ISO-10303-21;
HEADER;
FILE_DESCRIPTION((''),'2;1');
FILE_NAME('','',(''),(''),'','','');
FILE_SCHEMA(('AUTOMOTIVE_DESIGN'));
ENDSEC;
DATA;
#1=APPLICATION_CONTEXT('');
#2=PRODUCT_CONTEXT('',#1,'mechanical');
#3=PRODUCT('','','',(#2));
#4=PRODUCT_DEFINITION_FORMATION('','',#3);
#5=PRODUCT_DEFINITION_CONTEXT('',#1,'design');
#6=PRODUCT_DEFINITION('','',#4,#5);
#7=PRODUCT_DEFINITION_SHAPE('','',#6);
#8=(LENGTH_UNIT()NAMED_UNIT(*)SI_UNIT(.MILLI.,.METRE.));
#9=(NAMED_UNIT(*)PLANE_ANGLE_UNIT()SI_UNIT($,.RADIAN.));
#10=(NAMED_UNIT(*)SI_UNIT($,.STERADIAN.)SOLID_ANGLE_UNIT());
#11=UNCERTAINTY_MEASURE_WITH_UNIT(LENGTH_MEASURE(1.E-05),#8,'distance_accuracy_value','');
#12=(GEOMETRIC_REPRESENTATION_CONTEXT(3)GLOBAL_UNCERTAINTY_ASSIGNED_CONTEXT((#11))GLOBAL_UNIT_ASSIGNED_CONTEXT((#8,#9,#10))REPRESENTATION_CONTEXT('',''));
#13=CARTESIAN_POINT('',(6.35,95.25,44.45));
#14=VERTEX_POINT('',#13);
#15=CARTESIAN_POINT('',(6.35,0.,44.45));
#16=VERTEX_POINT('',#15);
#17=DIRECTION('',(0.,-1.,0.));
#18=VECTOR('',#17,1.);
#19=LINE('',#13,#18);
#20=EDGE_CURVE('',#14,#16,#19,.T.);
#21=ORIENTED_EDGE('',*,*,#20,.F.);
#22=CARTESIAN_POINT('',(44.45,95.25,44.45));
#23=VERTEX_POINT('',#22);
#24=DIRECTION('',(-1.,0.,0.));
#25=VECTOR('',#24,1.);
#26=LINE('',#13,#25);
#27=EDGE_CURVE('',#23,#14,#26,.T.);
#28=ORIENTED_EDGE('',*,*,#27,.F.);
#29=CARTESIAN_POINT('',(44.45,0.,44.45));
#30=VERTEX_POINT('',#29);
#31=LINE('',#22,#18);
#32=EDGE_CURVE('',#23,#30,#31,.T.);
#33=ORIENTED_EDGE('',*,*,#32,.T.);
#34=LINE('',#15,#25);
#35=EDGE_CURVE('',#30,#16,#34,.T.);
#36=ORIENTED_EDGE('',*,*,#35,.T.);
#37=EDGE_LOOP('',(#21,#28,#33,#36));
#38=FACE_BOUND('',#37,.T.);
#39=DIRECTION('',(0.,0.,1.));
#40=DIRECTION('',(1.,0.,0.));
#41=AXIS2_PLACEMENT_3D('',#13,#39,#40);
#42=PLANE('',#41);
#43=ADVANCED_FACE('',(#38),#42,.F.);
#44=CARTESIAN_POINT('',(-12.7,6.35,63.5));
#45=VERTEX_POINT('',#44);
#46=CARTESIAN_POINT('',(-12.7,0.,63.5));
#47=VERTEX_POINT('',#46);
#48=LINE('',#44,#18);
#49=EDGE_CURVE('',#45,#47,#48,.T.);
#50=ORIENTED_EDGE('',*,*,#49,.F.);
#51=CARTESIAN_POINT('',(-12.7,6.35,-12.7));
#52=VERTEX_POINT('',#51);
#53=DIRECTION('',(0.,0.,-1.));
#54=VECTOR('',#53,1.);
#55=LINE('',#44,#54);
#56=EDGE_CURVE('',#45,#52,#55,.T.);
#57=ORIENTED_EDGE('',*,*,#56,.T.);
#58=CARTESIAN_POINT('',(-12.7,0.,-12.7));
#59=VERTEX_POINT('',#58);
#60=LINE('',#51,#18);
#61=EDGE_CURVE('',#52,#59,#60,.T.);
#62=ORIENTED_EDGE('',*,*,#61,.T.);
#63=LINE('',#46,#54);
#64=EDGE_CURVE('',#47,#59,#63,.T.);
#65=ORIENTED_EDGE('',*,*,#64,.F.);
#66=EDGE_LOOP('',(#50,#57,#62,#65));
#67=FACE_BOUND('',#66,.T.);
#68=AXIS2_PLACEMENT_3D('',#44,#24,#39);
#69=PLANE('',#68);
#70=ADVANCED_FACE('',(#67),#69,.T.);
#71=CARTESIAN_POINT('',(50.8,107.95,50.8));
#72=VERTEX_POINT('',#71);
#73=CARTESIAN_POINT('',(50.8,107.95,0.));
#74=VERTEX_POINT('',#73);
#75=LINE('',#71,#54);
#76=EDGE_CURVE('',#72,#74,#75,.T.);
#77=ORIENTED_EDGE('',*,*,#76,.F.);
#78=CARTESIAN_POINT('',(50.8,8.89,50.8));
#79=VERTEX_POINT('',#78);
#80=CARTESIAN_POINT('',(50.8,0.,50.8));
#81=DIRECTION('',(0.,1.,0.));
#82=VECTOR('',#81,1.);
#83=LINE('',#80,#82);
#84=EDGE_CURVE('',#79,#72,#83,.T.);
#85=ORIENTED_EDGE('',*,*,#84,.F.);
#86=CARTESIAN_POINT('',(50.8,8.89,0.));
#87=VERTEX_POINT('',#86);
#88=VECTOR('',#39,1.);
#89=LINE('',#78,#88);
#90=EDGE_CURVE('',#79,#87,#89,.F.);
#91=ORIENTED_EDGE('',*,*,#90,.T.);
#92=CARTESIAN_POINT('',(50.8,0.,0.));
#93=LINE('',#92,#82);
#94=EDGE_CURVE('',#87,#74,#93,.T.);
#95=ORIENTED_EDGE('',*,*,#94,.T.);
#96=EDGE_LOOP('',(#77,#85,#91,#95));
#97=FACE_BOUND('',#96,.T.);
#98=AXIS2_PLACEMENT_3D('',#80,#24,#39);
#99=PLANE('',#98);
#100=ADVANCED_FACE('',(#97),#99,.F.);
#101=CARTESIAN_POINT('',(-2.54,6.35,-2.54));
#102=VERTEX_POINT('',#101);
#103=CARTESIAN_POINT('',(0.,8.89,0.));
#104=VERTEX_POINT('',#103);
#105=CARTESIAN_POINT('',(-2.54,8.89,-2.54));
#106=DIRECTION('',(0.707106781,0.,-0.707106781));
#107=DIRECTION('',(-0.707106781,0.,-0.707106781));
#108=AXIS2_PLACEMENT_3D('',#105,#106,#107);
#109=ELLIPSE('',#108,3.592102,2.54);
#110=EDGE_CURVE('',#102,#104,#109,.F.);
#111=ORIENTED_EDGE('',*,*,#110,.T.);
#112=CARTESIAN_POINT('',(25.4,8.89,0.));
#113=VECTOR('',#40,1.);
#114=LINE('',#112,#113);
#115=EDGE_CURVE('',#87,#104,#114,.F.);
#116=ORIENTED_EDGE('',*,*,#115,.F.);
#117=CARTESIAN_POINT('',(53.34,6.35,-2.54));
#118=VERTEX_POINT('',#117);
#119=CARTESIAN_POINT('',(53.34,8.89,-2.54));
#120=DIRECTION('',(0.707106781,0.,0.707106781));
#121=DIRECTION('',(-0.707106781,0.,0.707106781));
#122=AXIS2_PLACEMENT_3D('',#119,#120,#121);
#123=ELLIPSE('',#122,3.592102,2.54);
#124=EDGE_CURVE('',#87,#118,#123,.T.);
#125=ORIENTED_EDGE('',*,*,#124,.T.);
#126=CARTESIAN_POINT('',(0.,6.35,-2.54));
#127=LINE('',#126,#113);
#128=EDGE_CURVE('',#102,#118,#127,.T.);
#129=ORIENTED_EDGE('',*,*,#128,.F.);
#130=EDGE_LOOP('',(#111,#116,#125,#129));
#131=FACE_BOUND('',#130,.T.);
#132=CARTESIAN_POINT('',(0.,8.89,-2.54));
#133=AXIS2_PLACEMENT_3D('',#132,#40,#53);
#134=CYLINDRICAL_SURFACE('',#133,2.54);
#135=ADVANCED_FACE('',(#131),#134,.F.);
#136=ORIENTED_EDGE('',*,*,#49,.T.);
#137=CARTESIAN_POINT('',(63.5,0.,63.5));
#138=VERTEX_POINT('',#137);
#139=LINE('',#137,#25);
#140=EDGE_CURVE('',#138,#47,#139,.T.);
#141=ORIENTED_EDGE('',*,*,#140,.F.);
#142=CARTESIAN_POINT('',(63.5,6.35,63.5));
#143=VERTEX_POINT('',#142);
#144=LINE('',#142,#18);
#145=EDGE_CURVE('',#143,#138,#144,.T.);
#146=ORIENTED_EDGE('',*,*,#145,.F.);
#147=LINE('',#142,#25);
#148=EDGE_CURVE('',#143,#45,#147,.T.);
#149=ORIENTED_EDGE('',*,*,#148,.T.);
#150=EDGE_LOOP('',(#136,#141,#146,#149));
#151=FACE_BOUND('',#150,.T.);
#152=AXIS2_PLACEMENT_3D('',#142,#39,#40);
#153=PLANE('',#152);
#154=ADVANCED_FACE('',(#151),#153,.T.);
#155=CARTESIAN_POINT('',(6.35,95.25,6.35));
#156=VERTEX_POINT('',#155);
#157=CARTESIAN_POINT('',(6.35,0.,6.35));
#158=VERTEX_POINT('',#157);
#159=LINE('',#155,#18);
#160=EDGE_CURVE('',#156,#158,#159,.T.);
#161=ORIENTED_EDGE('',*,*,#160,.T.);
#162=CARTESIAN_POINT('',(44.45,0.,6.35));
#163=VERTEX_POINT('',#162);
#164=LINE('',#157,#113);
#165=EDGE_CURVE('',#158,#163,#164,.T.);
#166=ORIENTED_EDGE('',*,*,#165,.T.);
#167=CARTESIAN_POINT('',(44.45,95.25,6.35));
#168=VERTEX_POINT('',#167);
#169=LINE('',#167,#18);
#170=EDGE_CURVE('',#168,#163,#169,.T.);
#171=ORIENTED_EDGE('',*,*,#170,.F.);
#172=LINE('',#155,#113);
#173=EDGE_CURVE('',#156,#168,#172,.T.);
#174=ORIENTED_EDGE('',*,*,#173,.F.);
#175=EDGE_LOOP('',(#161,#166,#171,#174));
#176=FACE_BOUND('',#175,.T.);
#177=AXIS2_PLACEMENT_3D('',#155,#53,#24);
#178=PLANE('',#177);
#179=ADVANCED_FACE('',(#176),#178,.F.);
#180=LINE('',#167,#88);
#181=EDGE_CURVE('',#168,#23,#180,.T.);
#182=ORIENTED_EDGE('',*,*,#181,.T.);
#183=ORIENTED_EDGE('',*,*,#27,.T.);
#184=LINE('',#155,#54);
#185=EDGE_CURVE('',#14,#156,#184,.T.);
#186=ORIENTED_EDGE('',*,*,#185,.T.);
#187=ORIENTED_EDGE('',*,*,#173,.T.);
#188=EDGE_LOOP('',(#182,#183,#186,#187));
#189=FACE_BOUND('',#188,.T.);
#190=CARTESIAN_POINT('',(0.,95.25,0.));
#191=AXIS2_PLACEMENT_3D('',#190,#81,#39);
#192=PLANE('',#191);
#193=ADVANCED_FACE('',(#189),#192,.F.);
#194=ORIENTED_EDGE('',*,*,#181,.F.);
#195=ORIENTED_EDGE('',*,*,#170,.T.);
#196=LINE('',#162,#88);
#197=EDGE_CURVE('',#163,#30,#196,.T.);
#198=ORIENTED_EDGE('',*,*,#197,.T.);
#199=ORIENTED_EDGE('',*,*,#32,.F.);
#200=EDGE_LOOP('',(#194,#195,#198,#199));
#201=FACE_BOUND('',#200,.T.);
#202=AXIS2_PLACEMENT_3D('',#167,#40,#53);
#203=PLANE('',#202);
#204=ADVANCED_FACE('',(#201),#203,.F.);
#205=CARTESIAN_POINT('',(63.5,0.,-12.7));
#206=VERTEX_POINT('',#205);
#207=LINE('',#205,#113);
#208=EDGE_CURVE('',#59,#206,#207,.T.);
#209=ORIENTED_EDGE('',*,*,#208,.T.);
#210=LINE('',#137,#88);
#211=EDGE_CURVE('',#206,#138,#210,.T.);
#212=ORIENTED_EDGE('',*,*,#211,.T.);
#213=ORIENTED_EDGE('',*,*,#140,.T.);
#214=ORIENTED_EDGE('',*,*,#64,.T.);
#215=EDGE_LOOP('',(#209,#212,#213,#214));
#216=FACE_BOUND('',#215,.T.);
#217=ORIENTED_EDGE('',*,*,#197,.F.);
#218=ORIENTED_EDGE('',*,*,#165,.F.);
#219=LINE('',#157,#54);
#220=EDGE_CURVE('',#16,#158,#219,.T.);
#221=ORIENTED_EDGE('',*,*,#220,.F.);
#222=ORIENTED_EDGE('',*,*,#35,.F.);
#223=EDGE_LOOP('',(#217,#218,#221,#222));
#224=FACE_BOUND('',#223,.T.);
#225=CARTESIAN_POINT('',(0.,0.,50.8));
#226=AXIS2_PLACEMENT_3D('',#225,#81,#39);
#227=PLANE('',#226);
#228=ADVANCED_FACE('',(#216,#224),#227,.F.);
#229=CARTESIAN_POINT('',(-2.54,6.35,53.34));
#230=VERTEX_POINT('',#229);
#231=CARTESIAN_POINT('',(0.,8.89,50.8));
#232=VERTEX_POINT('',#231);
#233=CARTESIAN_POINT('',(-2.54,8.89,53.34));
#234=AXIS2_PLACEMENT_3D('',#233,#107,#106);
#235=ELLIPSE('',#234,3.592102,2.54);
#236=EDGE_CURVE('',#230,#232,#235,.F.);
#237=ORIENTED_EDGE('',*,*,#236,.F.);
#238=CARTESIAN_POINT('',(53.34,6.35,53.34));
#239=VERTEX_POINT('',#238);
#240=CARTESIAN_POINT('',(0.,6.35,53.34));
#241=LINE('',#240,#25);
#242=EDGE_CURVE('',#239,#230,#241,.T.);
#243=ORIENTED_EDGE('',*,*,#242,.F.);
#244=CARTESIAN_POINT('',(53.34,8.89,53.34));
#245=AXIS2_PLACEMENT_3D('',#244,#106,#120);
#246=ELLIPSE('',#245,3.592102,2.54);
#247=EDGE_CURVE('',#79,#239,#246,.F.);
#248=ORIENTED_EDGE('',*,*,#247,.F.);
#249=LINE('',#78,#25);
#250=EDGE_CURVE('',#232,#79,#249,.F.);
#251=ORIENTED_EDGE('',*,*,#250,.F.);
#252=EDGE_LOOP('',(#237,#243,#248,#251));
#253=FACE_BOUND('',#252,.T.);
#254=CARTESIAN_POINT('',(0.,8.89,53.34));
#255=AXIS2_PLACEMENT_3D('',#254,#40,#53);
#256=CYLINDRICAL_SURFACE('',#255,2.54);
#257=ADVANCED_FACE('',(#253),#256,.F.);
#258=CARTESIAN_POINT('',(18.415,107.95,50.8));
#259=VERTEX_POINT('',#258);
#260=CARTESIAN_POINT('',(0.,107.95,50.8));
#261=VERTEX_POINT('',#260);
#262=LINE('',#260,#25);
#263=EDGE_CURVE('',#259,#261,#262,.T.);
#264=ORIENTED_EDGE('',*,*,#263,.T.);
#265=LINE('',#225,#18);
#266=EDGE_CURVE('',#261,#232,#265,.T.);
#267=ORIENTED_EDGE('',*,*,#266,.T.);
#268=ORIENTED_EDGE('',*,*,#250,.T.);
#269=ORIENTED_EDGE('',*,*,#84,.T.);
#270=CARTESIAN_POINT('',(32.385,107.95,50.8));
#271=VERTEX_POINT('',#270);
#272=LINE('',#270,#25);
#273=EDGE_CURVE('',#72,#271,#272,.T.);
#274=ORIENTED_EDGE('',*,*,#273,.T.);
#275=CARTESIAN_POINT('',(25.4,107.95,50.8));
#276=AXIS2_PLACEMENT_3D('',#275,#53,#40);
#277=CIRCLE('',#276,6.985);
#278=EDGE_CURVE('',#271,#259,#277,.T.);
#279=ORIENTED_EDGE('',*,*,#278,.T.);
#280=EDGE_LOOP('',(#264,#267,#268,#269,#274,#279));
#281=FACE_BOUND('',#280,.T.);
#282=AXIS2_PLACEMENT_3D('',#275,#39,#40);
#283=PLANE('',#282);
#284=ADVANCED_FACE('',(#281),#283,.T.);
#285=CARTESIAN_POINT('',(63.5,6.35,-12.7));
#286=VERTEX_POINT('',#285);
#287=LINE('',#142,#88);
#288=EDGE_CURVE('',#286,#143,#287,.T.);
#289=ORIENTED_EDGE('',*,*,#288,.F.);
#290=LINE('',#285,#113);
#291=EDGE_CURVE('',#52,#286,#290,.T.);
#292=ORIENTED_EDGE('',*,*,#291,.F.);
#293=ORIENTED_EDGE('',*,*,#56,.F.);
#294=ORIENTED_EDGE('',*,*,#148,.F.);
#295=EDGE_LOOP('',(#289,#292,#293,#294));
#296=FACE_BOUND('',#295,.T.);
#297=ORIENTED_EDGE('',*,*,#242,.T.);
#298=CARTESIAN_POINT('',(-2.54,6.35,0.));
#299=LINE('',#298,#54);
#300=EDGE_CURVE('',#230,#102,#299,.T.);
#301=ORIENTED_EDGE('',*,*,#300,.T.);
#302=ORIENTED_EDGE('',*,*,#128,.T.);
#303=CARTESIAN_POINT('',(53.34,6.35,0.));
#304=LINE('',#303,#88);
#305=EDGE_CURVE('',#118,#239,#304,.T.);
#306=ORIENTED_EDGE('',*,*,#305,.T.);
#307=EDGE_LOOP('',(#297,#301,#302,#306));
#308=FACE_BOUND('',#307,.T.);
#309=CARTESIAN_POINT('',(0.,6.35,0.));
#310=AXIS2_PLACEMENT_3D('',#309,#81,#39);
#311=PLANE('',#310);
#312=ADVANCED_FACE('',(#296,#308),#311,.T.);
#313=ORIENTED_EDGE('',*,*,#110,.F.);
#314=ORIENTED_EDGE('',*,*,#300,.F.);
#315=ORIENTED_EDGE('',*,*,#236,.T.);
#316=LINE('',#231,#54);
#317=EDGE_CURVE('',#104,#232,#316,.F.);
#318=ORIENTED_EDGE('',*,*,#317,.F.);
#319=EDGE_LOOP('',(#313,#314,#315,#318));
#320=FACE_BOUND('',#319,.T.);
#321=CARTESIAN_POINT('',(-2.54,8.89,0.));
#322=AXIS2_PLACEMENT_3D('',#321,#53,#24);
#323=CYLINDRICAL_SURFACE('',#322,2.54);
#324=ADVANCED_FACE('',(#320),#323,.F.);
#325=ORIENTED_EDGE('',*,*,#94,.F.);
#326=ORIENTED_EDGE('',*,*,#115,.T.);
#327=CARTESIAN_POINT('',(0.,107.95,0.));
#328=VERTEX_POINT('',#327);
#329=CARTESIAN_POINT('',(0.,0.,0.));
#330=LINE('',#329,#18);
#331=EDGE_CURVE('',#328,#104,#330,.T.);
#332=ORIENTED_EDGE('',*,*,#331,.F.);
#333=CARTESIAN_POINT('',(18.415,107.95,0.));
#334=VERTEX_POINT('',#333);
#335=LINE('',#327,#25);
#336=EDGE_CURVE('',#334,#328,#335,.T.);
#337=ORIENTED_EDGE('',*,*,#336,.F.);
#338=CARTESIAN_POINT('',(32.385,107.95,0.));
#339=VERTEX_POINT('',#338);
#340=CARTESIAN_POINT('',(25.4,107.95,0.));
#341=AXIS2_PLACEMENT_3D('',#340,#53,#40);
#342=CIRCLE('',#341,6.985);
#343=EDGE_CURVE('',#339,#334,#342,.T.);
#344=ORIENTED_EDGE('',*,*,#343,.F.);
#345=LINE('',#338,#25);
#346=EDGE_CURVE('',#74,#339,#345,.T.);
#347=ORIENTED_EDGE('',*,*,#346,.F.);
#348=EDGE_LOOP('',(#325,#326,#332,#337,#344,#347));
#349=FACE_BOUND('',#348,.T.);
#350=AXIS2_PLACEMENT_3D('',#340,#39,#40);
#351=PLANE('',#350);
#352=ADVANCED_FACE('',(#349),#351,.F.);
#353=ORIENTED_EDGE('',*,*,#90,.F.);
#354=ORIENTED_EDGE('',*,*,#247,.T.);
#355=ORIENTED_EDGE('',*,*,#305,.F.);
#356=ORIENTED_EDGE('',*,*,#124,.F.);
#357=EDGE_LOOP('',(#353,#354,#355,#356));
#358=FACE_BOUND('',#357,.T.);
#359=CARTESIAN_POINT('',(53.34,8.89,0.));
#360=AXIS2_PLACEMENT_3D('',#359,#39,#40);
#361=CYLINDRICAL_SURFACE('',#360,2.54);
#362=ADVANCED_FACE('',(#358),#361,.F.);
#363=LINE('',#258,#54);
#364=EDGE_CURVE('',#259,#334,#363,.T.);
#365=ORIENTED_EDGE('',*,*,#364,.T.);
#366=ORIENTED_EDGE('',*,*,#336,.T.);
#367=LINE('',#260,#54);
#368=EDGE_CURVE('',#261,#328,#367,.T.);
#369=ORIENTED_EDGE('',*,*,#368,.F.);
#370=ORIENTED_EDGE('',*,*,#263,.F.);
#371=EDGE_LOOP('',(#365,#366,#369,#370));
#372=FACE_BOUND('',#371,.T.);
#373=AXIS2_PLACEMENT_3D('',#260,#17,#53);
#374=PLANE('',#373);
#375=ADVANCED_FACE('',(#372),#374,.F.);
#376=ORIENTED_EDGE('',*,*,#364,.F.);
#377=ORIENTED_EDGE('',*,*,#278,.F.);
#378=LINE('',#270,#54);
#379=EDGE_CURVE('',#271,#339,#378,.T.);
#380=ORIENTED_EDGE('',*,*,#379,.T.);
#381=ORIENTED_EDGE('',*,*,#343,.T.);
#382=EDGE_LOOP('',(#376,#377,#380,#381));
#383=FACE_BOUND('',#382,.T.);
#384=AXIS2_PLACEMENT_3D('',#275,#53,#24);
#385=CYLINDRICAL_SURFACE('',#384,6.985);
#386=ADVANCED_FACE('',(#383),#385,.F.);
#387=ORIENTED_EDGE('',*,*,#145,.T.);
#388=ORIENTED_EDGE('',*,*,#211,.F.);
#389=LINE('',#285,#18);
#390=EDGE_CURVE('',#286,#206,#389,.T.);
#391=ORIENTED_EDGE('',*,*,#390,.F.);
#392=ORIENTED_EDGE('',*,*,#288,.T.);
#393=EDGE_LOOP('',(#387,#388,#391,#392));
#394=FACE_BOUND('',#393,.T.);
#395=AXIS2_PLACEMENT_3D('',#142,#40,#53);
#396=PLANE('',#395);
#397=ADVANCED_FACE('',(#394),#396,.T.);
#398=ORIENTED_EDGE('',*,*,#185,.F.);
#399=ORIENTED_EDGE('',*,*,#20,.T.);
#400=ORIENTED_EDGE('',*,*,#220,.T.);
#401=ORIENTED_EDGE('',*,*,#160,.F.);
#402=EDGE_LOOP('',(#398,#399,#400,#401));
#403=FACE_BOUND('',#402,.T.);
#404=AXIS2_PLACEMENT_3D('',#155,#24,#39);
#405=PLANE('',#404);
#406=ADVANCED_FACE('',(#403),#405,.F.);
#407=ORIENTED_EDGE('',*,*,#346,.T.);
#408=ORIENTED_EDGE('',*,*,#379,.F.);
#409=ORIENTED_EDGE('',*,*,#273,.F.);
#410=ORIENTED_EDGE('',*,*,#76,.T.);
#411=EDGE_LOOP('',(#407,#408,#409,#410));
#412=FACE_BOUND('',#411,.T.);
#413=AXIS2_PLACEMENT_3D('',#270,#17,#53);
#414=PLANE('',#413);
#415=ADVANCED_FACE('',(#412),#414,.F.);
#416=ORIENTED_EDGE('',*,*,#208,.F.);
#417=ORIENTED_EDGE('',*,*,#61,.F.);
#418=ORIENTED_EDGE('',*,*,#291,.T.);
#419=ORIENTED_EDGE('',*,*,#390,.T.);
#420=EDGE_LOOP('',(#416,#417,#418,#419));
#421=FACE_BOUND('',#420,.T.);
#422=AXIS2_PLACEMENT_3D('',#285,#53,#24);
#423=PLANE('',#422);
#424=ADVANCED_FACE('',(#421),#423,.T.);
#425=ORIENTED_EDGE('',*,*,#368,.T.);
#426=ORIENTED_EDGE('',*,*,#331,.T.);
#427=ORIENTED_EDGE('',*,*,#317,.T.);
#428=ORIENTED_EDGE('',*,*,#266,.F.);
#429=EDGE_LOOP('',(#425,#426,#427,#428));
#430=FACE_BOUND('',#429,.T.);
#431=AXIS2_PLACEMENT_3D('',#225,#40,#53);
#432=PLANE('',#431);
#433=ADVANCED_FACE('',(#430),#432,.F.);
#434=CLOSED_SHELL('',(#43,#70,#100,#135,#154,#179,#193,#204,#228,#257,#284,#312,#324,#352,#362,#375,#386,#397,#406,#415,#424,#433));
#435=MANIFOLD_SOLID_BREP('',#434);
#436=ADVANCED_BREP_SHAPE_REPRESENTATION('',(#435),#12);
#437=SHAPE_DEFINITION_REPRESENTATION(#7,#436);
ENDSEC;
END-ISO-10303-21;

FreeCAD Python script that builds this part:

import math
import FreeCAD as App
import Part
import Sketcher

V = App.Vector
Q = App.Units.Quantity


def edges_at(feature, points):
    """Names of the edges that pass closest to the given points."""
    edges = feature.Shape.Edges
    near = lambda p: min(range(len(edges)), key=lambda i: edges[i].distToShape(Part.Vertex(*p))[0])
    return sorted({f"Edge{near(p) + 1}" for p in points})

doc = App.newDocument("Part")
body = doc.addObject("PartDesign::Body", "Body")

# Sketch on XY plane
sketch1 = body.newObject("Sketcher::SketchObject", "Sketch")
sketch1.AttachmentSupport = (doc.getObject("XY_Plane"), [""])
sketch1.MapMode = "FlatFace"
sketch1.addGeometry([
    Part.LineSegment(V(50.8, 107.95, 0), V(32.385, 107.95, 0)),  # 0
    Part.ArcOfCircle(Part.Circle(V(25.4, 107.95, 0), V(0, 0, 1), 6.985), math.radians(180), math.radians(360)),  # 1
    Part.LineSegment(V(18.415, 107.95, 0), V(0, 107.95, 0)),  # 2
    Part.LineSegment(V(0, 107.95, 0), V(0, 0, 0)),  # 3
    Part.LineSegment(V(0, 0, 0), V(50.8, 0, 0)),  # 4
    Part.LineSegment(V(50.8, 0, 0), V(50.8, 107.95, 0)),  # 5
], False)
sketch1.addConstraint([
    Sketcher.Constraint("Coincident", 0, 2, 1, 2),
    Sketcher.Constraint("Coincident", 1, 1, 2, 1),
    Sketcher.Constraint("Coincident", 2, 2, 3, 1),
    Sketcher.Constraint("Coincident", 3, 2, 4, 1),
    Sketcher.Constraint("Coincident", 4, 2, 5, 1),
    Sketcher.Constraint("Coincident", 5, 2, 0, 1),
    Sketcher.Constraint("Horizontal", 0),
    Sketcher.Constraint("Horizontal", 2),
    Sketcher.Constraint("Vertical", 3),
    Sketcher.Constraint("Horizontal", 4),
    Sketcher.Constraint("Vertical", 5),
    Sketcher.Constraint("Coincident", 3, 2, -1, 1),
    Sketcher.Constraint("Horizontal", 1, 3, 0, 2),
    Sketcher.Constraint("Horizontal", 0, 2, 1, 1),
    Sketcher.Constraint("Equal", 0, 2),
    Sketcher.Constraint("DistanceX", 4, 1, 4, 2, Q("2 in")),
    Sketcher.Constraint("Radius", 1, Q("0.275 in")),
    Sketcher.Constraint("DistanceY", 3, 2, 3, 1, Q("4.25 in")),
])
pad1 = body.newObject("PartDesign::Pad", "Pad")
pad1.Profile = sketch1
pad1.Length = Q("2 in")

# Sketch on XZ plane
sketch2 = body.newObject("Sketcher::SketchObject", "Sketch001")
sketch2.AttachmentSupport = (doc.getObject("XZ_Plane"), [""])
sketch2.MapMode = "FlatFace"
sketch2.addGeometry([
    Part.LineSegment(V(6.35, 44.45, 0), V(6.35, 6.35, 0)),
    Part.LineSegment(V(6.35, 6.35, 0), V(44.45, 6.35, 0)),
    Part.LineSegment(V(44.45, 6.35, 0), V(44.45, 44.45, 0)),
    Part.LineSegment(V(44.45, 44.45, 0), V(6.35, 44.45, 0)),
], False)
sketch2.addConstraint([
    Sketcher.Constraint("Coincident", 0, 2, 1, 1),
    Sketcher.Constraint("Coincident", 1, 2, 2, 1),
    Sketcher.Constraint("Coincident", 2, 2, 3, 1),
    Sketcher.Constraint("Coincident", 3, 2, 0, 1),
    Sketcher.Constraint("Vertical", 0),
    Sketcher.Constraint("Horizontal", 1),
    Sketcher.Constraint("Vertical", 2),
    Sketcher.Constraint("Horizontal", 3),
    Sketcher.Constraint("Equal", 3, 0),
    Sketcher.Constraint("DistanceX", 1, 1, 1, 2, Q("1.5 in")),
    Sketcher.Constraint("DistanceX", -1, 1, 0, 2, Q("0.25 in")),
    Sketcher.Constraint("DistanceY", -1, 1, 0, 2, Q("0.25 in")),
])
pocket1 = body.newObject("PartDesign::Pocket", "Pocket")
pocket1.Profile = sketch2
pocket1.Length = Q("3.75 in")

# Sketch on XZ plane
sketch3 = body.newObject("Sketcher::SketchObject", "Sketch002")
sketch3.AttachmentSupport = (doc.getObject("XZ_Plane"), [""])
sketch3.MapMode = "FlatFace"
sketch3.addGeometry([
    Part.LineSegment(V(-12.7, 63.5, 0), V(-12.7, -12.7, 0)),  # 0
    Part.LineSegment(V(-12.7, -12.7, 0), V(63.5, -12.7, 0)),  # 1
    Part.LineSegment(V(63.5, -12.7, 0), V(63.5, 63.5, 0)),  # 2
    Part.LineSegment(V(63.5, 63.5, 0), V(-12.7, 63.5, 0)),  # 3
    Part.LineSegment(V(50.8, 0, 0), V(0, 0, 0)),  # 4
    Part.LineSegment(V(0, 0, 0), V(0, 50.8, 0)),  # 5
    Part.LineSegment(V(0, 50.8, 0), V(50.8, 50.8, 0)),  # 6
    Part.LineSegment(V(50.8, 50.8, 0), V(50.8, 0, 0)),  # 7
], False)
sketch3.addConstraint([
    Sketcher.Constraint("Coincident", 0, 2, 1, 1),
    Sketcher.Constraint("Coincident", 1, 2, 2, 1),
    Sketcher.Constraint("Coincident", 2, 2, 3, 1),
    Sketcher.Constraint("Coincident", 3, 2, 0, 1),
    Sketcher.Constraint("Coincident", 4, 2, 5, 1),
    Sketcher.Constraint("Coincident", 5, 2, 6, 1),
    Sketcher.Constraint("Coincident", 6, 2, 7, 1),
    Sketcher.Constraint("Coincident", 7, 2, 4, 1),
    Sketcher.Constraint("Vertical", 0),
    Sketcher.Constraint("Horizontal", 1),
    Sketcher.Constraint("Vertical", 2),
    Sketcher.Constraint("Horizontal", 3),
    Sketcher.Constraint("Horizontal", 4),
    Sketcher.Constraint("Vertical", 5),
    Sketcher.Constraint("Horizontal", 6),
    Sketcher.Constraint("Vertical", 7),
    Sketcher.Constraint("Coincident", 4, 2, -1, 1),
    Sketcher.Constraint("Equal", 3, 0),
    Sketcher.Constraint("Equal", 6, 5),
    Sketcher.Constraint("DistanceX", 1, 1, 1, 2, Q("3 in")),
    Sketcher.Constraint("DistanceX", 4, 2, 4, 1, Q("2 in")),
    Sketcher.Constraint("DistanceX", 0, 2, -1, 1, Q("0.5 in")),
    Sketcher.Constraint("DistanceY", 0, 2, -1, 1, Q("0.5 in")),
])
pad2 = body.newObject("PartDesign::Pad", "Pad001")
pad2.Profile = sketch3
pad2.Length = Q("0.25 in")
pad2.Reversed = True
doc.recompute()

fillet = body.newObject("PartDesign::Fillet", "Fillet")
fillet.Base = (pad2, edges_at(pad2, [
    (50.8, 6.35, 25.4),
    (25.4, 6.35, 50.8),
    (0, 6.35, 25.4),
    (25.4, 6.35, 0),
]))
fillet.Radius = Q("0.1 in")

doc.recompute()
